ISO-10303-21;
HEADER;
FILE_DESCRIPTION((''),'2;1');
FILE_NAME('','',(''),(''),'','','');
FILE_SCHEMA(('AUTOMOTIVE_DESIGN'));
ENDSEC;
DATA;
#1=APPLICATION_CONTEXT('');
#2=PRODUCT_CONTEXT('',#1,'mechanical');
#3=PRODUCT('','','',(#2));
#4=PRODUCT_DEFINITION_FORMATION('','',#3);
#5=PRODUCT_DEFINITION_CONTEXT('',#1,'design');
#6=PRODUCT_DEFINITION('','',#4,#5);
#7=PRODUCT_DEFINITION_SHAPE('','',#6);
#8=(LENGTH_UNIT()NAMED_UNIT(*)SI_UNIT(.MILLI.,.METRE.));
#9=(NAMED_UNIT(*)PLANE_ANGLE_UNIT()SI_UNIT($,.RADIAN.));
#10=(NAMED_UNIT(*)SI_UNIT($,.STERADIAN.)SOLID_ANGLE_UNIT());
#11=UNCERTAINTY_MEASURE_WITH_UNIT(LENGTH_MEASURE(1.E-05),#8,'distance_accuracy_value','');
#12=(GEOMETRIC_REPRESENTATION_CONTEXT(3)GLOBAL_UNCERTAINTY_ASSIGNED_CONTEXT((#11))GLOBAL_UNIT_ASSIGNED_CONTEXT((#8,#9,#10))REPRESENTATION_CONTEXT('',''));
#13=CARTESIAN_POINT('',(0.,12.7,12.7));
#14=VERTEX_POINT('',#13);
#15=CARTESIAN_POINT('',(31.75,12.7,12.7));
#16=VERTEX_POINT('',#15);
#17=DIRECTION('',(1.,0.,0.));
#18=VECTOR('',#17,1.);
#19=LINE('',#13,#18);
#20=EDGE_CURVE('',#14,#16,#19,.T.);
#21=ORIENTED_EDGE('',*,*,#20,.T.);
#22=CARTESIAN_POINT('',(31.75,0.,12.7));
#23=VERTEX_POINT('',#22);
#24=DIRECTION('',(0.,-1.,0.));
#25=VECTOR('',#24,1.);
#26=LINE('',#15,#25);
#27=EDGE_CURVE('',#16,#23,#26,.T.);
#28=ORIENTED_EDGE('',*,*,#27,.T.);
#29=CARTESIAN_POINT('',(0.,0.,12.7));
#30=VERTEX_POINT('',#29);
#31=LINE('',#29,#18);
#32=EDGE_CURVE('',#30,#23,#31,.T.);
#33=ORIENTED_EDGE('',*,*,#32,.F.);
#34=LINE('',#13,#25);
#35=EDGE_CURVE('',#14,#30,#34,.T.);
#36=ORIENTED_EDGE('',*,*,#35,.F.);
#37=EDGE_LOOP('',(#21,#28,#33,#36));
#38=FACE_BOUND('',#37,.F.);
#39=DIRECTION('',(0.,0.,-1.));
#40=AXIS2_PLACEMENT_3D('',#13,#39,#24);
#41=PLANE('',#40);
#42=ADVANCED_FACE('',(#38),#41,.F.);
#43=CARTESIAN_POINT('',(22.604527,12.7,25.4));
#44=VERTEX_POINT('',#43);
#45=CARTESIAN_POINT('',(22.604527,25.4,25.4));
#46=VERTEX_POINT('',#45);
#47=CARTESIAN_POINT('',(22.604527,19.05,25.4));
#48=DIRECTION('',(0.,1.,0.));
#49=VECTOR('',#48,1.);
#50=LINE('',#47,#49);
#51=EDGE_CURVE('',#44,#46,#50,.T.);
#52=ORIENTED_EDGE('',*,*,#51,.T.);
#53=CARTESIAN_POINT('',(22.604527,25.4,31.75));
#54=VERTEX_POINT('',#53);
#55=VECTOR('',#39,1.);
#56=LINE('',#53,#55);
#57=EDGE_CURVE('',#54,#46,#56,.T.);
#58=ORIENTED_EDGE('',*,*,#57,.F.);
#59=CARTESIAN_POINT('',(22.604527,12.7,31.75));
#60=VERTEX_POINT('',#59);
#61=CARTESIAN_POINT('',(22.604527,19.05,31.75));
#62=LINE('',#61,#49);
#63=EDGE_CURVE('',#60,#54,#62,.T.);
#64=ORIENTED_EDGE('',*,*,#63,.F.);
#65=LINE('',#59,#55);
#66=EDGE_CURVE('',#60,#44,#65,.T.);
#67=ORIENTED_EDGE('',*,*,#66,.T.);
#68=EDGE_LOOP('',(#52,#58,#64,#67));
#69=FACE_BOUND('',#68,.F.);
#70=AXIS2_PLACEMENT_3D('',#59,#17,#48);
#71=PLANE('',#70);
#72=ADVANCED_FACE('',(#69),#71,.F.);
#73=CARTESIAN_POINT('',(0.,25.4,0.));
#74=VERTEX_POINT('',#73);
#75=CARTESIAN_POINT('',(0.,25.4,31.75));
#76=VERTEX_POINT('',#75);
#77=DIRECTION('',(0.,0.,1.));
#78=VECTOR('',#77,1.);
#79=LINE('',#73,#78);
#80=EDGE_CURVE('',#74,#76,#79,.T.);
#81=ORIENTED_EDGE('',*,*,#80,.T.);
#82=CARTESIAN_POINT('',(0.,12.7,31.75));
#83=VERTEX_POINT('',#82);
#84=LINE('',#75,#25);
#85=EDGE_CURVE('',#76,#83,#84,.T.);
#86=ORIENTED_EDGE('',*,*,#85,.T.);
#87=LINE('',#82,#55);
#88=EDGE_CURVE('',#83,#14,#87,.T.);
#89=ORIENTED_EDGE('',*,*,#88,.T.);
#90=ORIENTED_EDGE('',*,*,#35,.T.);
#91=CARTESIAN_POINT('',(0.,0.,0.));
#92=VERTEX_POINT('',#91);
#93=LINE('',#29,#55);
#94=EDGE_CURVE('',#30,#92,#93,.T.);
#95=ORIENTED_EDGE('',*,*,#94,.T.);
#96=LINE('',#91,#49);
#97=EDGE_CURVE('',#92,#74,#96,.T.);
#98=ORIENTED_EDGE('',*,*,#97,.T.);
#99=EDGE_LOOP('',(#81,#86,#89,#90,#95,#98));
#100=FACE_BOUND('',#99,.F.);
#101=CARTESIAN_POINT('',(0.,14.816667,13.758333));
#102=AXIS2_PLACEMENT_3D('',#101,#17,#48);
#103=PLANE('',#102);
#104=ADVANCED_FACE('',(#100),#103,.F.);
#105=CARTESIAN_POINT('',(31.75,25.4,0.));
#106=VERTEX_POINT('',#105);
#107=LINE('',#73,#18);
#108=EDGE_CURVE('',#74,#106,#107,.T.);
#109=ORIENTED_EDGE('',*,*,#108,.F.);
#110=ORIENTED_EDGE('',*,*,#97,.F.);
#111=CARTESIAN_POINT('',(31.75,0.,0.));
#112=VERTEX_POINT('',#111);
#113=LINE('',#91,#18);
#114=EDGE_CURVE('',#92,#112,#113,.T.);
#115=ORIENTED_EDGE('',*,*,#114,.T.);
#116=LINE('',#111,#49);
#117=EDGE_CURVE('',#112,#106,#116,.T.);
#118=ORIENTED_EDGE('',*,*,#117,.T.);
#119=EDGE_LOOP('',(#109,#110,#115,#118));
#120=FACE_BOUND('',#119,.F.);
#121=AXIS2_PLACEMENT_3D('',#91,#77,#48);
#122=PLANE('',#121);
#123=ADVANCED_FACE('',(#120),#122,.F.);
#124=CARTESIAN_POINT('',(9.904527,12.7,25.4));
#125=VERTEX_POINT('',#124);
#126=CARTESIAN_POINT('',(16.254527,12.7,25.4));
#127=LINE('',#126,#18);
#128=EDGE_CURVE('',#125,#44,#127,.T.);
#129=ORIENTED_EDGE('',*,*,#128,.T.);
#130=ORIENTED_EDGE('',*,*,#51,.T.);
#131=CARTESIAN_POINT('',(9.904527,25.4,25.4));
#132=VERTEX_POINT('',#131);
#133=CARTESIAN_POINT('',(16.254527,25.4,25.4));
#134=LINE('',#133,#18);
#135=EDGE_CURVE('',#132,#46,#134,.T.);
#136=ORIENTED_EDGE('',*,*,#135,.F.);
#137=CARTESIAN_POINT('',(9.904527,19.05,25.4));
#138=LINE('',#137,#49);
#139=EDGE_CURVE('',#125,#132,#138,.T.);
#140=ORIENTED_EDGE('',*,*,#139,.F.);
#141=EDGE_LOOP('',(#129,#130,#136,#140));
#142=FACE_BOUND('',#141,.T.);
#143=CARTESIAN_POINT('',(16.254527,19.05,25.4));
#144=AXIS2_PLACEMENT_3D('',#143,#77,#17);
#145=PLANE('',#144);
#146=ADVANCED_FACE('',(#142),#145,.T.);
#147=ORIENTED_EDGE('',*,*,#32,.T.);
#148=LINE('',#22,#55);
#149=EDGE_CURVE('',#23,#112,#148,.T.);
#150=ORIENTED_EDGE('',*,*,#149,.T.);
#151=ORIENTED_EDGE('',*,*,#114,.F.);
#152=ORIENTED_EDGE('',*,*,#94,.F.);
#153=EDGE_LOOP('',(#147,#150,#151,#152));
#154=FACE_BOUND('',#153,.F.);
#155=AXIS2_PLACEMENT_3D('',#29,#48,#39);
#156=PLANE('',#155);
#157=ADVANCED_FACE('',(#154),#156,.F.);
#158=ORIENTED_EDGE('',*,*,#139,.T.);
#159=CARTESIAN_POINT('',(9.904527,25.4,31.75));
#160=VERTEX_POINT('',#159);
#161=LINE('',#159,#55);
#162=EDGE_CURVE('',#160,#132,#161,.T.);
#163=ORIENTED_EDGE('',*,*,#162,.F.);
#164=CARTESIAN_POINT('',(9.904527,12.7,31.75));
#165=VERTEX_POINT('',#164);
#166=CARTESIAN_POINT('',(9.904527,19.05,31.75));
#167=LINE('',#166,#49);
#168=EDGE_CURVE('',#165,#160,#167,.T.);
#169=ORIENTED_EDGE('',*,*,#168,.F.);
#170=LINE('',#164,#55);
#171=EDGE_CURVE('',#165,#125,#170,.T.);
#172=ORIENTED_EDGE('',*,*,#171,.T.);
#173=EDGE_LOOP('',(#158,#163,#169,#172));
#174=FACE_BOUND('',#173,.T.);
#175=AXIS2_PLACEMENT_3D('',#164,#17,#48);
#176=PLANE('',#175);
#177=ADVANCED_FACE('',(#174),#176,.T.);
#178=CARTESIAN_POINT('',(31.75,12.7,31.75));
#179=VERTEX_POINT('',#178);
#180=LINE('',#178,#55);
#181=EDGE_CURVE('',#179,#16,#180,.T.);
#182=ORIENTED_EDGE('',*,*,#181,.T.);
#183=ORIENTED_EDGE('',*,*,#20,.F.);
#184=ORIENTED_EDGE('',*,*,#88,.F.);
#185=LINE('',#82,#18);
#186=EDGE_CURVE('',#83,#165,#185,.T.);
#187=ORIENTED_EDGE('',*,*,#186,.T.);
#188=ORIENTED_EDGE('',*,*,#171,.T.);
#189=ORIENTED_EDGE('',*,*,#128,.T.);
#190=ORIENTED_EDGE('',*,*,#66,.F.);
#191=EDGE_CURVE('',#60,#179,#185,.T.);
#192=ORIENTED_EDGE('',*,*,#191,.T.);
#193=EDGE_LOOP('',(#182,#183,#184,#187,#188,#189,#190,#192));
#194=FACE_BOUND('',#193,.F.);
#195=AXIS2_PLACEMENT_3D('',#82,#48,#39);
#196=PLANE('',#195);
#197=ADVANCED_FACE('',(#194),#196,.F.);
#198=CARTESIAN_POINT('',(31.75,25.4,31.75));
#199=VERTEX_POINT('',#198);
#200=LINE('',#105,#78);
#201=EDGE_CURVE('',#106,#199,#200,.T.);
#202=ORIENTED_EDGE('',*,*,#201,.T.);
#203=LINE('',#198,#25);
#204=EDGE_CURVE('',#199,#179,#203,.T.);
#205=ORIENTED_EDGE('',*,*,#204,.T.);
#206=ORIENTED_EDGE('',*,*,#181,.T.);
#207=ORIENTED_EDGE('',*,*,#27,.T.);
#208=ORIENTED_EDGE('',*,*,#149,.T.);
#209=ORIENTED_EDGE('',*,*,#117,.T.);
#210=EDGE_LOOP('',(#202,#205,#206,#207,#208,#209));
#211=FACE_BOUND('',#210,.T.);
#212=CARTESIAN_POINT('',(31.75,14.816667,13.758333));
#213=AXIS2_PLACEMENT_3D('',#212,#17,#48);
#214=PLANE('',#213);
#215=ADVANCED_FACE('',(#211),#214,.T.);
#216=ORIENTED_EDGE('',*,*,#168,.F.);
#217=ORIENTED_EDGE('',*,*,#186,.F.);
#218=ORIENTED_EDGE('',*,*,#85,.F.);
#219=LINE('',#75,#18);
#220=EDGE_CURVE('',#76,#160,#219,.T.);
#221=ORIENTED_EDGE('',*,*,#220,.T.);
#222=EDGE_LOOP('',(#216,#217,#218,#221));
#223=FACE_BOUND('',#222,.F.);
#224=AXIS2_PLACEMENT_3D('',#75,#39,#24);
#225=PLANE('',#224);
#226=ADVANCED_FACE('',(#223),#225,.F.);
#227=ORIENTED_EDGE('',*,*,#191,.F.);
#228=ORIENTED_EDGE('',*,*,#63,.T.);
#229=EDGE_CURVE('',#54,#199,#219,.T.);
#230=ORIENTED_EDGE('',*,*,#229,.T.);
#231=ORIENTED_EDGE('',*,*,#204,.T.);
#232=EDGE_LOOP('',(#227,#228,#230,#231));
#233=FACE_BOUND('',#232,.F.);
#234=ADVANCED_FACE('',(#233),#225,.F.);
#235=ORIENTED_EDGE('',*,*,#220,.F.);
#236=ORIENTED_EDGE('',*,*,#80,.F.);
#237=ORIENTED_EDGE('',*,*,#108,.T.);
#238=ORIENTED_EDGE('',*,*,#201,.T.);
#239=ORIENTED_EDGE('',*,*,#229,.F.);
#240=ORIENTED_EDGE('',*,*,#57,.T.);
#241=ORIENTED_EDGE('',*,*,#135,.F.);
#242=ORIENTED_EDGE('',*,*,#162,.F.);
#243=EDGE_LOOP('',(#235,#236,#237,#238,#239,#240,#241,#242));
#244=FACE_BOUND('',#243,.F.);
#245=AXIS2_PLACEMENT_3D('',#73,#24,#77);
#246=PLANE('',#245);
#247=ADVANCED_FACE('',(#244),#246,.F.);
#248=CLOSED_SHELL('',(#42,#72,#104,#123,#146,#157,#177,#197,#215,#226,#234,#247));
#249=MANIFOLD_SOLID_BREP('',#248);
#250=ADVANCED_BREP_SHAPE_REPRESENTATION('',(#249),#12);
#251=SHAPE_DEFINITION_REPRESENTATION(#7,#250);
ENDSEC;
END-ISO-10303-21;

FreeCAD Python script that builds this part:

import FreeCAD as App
import Part
import Sketcher
from FreeCAD import Vector
Q = App.Units.Quantity


def add_polygon(sketch, points):
    """Adds a closed chain of lines whose ends are joined by coincident constraints."""
    first, n = sketch.GeometryCount, len(points)
    for a, b in zip(points, points[1:] + points[:1]):
        sketch.addGeometry(Part.LineSegment(App.Vector(*a, 0), App.Vector(*b, 0)), False)
    for i in range(n):
        sketch.addConstraint(Sketcher.Constraint("Coincident", first + i, 2, first + (i + 1) % n, 1))

doc = App.newDocument("Part")
body = doc.addObject("PartDesign::Body", "Body")

# Sketch on YZ plane
sketch1 = body.newObject("Sketcher::SketchObject", "Sketch")
sketch1.AttachmentSupport = (doc.getObject("YZ_Plane"), [""])
sketch1.MapMode = "FlatFace"
add_polygon(sketch1, [(0, 0), (25, 0), (25, 32), (13, 32), (13, 13), (0, 13)])  # lines 0-5
sketch1.addConstraint(Sketcher.Constraint("Horizontal", 0))
sketch1.addConstraint(Sketcher.Constraint("Vertical", 1))
sketch1.addConstraint(Sketcher.Constraint("Horizontal", 2))
sketch1.addConstraint(Sketcher.Constraint("Vertical", 3))
sketch1.addConstraint(Sketcher.Constraint("Horizontal", 4))
sketch1.addConstraint(Sketcher.Constraint("Vertical", 5))
sketch1.addConstraint(Sketcher.Constraint("Coincident", 5, 2, -1, 1))
sketch1.addConstraint(Sketcher.Constraint("Equal", 2, 4))
sketch1.addConstraint(Sketcher.Constraint("Equal", 4, 5))
sketch1.addConstraint(Sketcher.Constraint("DistanceX", 0, 1, 0, 2, Q("1 in")))
sketch1.addConstraint(Sketcher.Constraint("DistanceY", 1, 1, 1, 2, Q("1.25 in")))
pad1 = body.newObject("PartDesign::Pad", "Pad")
pad1.Profile = sketch1
pad1.Length = Q("1.25 in")

# Sketch on XY plane
sketch2 = body.newObject("Sketcher::SketchObject", "Sketch001")
sketch2.AttachmentSupport = (doc.getObject("XY_Plane"), [""])
sketch2.MapMode = "FlatFace"
sketch2.AttachmentOffset = App.Placement(Vector(0, 0, 1.25 * 25.4), App.Rotation())
add_polygon(sketch2, [(10, 25), (10, 13), (23, 13), (23, 25)])  # lines 0-3
sketch2.addConstraint(Sketcher.Constraint("Vertical", 0))
sketch2.addConstraint(Sketcher.Constraint("Horizontal", 1))
sketch2.addConstraint(Sketcher.Constraint("Vertical", 2))
sketch2.addConstraint(Sketcher.Constraint("Horizontal", 3))
sketch2.addConstraint(Sketcher.Constraint("Equal", 3, 0))
sketch2.addConstraint(Sketcher.Constraint("DistanceX", 1, 1, 1, 2, Q("0.5 in")))
sketch2.addConstraint(Sketcher.Constraint("DistanceY", -1, 1, 2, 2, Q("1 in")))
sketch2.addConstraint(Sketcher.Constraint("DistanceX", -1, 1, 0, 2, Q("9.904527 mm")))
pocket1 = body.newObject("PartDesign::Pocket", "Pocket")
pocket1.Profile = sketch2
pocket1.Length = Q("0.25 in")

doc.recompute()
